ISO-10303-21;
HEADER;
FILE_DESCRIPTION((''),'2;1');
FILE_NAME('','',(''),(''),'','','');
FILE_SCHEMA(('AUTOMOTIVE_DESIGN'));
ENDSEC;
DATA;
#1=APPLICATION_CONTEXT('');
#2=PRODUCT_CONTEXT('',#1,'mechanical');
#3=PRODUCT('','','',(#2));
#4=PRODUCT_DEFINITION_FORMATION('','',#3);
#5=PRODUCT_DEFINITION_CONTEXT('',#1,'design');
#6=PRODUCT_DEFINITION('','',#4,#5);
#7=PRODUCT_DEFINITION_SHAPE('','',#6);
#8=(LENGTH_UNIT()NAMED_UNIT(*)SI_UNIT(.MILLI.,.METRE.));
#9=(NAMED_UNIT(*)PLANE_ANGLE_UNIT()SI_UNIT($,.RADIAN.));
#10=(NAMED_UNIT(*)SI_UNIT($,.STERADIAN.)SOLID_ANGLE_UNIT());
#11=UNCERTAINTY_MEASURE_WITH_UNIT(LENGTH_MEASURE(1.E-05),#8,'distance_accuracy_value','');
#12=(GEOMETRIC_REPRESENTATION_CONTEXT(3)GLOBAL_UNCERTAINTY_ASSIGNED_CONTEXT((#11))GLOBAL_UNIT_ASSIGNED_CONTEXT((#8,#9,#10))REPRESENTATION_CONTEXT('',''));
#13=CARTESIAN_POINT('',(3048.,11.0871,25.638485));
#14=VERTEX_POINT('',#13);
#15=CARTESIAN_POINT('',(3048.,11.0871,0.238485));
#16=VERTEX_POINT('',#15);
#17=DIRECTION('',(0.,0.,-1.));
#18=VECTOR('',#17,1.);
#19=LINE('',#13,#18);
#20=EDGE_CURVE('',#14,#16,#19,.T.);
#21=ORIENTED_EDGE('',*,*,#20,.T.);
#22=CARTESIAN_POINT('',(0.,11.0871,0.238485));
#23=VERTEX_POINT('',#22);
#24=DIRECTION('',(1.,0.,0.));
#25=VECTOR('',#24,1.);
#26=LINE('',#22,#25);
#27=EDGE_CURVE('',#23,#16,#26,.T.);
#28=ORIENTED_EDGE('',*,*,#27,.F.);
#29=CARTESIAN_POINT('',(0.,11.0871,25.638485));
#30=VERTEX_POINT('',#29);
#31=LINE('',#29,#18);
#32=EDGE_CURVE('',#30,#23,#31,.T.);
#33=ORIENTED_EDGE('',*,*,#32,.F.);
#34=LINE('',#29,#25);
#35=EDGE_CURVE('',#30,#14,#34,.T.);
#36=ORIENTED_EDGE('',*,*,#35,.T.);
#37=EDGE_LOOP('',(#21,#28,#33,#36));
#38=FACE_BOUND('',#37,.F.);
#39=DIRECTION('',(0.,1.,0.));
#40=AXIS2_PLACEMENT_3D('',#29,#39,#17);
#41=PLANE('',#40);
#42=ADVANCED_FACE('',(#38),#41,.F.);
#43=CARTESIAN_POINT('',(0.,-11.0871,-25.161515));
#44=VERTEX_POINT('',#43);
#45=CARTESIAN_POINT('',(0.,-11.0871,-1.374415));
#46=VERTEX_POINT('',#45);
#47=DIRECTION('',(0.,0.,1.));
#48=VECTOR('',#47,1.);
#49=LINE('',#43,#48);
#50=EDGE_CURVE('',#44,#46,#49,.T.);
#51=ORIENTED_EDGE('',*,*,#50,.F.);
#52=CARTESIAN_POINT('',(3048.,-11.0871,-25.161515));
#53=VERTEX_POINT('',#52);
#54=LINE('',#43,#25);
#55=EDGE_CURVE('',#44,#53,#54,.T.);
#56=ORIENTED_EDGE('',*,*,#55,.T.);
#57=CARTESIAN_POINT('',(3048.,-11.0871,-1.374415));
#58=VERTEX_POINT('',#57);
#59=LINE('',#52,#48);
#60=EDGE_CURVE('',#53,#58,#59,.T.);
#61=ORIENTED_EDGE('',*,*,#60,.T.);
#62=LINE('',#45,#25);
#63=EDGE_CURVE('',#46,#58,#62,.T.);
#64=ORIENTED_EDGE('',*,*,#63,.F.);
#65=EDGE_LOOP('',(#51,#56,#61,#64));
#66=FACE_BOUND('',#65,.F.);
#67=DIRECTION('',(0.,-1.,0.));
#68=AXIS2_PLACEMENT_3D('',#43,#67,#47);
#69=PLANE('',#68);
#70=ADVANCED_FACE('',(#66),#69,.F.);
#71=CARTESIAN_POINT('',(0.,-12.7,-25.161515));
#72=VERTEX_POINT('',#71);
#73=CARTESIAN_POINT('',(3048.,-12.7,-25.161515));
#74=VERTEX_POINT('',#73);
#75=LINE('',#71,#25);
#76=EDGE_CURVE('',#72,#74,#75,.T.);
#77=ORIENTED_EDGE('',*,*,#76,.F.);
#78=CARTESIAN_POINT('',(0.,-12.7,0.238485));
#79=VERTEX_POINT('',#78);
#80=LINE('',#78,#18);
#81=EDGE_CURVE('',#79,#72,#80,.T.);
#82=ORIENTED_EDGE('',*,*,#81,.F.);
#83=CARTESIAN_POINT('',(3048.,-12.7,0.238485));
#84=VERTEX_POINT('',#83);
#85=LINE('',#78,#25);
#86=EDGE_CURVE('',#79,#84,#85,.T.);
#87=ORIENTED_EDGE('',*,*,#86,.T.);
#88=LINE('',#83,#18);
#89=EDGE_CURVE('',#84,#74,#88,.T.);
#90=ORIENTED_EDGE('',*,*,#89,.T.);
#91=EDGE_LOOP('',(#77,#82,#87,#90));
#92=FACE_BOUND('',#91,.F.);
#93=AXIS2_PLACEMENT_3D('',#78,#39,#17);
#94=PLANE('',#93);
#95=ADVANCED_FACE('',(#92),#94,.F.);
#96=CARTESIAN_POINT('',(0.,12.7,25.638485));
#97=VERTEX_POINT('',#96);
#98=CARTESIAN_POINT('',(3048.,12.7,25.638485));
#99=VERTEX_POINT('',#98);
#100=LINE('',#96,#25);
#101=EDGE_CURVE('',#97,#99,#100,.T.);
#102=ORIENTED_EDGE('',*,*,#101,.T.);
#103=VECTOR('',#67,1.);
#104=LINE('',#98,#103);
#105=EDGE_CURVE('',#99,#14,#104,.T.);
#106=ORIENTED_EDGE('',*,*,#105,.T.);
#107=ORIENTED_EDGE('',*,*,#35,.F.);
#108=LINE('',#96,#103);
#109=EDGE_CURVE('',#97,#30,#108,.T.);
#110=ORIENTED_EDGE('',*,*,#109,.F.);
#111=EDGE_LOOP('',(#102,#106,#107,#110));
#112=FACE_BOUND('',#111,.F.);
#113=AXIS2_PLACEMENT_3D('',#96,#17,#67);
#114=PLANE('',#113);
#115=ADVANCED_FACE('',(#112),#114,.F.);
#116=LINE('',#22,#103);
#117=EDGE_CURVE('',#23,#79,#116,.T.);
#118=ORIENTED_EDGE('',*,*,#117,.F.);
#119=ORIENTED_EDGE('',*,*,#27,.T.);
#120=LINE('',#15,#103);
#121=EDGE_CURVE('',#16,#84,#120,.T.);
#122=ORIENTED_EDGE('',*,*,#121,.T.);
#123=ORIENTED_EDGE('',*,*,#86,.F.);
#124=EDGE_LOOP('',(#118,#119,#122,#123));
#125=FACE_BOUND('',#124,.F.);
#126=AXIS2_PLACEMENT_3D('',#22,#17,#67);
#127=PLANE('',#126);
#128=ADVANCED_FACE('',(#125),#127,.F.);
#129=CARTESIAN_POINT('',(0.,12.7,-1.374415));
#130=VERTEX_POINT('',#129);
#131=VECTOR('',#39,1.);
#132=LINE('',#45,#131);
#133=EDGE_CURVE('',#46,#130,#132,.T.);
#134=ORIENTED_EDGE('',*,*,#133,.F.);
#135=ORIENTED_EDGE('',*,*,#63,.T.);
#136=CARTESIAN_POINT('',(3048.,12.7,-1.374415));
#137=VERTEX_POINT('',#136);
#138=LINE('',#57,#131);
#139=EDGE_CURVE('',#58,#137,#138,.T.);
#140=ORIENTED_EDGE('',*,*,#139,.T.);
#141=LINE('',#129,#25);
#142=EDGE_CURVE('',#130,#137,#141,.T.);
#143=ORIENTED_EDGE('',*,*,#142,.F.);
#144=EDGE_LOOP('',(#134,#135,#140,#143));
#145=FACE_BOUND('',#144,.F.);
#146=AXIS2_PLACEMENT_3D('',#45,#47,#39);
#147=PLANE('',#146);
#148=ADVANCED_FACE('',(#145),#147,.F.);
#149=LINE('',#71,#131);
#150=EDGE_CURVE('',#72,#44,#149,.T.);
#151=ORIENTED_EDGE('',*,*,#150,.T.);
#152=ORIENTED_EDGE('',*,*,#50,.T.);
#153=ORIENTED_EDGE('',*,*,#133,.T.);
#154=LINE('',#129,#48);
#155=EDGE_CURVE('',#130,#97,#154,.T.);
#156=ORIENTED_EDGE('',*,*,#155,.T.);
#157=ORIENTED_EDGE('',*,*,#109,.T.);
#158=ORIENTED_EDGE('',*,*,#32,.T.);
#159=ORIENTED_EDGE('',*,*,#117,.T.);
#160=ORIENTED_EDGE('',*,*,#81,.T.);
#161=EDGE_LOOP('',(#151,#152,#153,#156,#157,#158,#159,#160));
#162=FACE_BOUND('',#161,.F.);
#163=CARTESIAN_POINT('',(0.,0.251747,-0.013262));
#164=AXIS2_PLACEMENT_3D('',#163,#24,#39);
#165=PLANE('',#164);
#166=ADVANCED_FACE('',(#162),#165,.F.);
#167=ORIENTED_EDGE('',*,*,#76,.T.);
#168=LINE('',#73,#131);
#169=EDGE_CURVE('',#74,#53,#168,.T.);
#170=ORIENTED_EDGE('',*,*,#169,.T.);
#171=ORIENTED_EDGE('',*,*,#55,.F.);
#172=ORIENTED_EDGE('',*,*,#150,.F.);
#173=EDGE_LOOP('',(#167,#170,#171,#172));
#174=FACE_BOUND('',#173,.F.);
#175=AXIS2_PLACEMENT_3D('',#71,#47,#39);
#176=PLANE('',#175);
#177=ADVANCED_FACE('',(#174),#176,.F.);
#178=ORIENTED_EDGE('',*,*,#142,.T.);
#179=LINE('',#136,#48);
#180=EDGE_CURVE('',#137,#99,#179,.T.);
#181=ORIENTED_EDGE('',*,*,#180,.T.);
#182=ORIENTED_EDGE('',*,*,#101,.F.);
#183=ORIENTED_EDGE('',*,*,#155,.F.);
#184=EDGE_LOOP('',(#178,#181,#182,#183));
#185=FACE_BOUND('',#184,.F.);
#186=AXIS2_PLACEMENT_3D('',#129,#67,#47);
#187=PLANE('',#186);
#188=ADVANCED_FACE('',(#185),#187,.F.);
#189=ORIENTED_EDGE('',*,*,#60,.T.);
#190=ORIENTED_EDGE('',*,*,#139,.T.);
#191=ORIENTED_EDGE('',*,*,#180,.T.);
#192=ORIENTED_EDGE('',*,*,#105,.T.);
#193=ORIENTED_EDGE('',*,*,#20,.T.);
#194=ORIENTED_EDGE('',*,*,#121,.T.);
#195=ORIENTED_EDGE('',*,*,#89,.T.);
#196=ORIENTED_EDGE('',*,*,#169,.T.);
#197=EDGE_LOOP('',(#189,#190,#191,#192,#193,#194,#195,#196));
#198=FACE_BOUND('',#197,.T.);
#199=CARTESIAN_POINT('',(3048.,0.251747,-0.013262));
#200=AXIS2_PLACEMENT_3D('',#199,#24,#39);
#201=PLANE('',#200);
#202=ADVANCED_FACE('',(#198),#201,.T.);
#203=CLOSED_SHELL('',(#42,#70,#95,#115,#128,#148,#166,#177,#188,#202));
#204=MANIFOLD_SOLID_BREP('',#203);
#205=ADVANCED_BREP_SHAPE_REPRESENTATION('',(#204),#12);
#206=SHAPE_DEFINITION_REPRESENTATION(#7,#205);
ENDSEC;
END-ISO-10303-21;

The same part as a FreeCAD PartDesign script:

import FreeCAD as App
import Part
import Sketcher

V = App.Vector
Q = App.Units.Quantity


def add_polygon(sketch, points):
    """Adds a closed chain of lines whose ends are joined by coincident constraints."""
    first, n = sketch.GeometryCount, len(points)
    for a, b in zip(points, points[1:] + points[:1]):
        sketch.addGeometry(Part.LineSegment(App.Vector(*a, 0), App.Vector(*b, 0)), False)
    for i in range(n):
        sketch.addConstraint(Sketcher.Constraint("Coincident", first + i, 2, first + (i + 1) % n, 1))

doc = App.newDocument("Part")
body = doc.addObject("PartDesign::Body", "Body")

# Sketch on YZ plane
sketch1 = body.newObject("Sketcher::SketchObject", "Sketch")
sketch1.AttachmentSupport = (doc.getObject("YZ_Plane"), [""])
sketch1.MapMode = "FlatFace"
add_polygon(sketch1, [(-12.7, 0.2), (-12.7, -25.2), (-11.1, -25.2), (-11.1, -1.4), (12.7, -1.4), (12.7, 25.6), (11.1, 25.6), (11.1, 0.2)])  # lines 0-7
sketch1.addConstraint(Sketcher.Constraint("Vertical", 0))
sketch1.addConstraint(Sketcher.Constraint("Horizontal", 1))
sketch1.addConstraint(Sketcher.Constraint("Vertical", 2))
sketch1.addConstraint(Sketcher.Constraint("Horizontal", 3))
sketch1.addConstraint(Sketcher.Constraint("Vertical", 4))
sketch1.addConstraint(Sketcher.Constraint("Horizontal", 5))
sketch1.addConstraint(Sketcher.Constraint("Vertical", 6))
sketch1.addConstraint(Sketcher.Constraint("Horizontal", 7))
sketch1.addConstraint(Sketcher.Constraint("Equal", 1, 5))
sketch1.addConstraint(Sketcher.Constraint("Equal", 7, 2))
sketch1.addConstraint(Sketcher.Constraint("Equal", 0, 6))
sketch1.addConstraint(Sketcher.Constraint("DistanceY", 0, 2, 0, 1, Q("1 in")))
sketch1.addConstraint(Sketcher.Constraint("DistanceX", 0, 2, 3, 2, Q("1 in")))
sketch1.addConstraint(Sketcher.Constraint("DistanceX", 0, 2, -1, 1, Q("0.5 in")))
sketch1.addConstraint(Sketcher.Constraint("DistanceX", 1, 1, 1, 2, Q("0.0635 in")))
sketch1.addConstraint(Sketcher.Constraint("DistanceY", 0, 2, -1, 1, 25.161515))
pad1 = body.newObject("PartDesign::Pad", "Pad")
pad1.Profile = sketch1
pad1.Length = Q("120 in")

doc.recompute()
